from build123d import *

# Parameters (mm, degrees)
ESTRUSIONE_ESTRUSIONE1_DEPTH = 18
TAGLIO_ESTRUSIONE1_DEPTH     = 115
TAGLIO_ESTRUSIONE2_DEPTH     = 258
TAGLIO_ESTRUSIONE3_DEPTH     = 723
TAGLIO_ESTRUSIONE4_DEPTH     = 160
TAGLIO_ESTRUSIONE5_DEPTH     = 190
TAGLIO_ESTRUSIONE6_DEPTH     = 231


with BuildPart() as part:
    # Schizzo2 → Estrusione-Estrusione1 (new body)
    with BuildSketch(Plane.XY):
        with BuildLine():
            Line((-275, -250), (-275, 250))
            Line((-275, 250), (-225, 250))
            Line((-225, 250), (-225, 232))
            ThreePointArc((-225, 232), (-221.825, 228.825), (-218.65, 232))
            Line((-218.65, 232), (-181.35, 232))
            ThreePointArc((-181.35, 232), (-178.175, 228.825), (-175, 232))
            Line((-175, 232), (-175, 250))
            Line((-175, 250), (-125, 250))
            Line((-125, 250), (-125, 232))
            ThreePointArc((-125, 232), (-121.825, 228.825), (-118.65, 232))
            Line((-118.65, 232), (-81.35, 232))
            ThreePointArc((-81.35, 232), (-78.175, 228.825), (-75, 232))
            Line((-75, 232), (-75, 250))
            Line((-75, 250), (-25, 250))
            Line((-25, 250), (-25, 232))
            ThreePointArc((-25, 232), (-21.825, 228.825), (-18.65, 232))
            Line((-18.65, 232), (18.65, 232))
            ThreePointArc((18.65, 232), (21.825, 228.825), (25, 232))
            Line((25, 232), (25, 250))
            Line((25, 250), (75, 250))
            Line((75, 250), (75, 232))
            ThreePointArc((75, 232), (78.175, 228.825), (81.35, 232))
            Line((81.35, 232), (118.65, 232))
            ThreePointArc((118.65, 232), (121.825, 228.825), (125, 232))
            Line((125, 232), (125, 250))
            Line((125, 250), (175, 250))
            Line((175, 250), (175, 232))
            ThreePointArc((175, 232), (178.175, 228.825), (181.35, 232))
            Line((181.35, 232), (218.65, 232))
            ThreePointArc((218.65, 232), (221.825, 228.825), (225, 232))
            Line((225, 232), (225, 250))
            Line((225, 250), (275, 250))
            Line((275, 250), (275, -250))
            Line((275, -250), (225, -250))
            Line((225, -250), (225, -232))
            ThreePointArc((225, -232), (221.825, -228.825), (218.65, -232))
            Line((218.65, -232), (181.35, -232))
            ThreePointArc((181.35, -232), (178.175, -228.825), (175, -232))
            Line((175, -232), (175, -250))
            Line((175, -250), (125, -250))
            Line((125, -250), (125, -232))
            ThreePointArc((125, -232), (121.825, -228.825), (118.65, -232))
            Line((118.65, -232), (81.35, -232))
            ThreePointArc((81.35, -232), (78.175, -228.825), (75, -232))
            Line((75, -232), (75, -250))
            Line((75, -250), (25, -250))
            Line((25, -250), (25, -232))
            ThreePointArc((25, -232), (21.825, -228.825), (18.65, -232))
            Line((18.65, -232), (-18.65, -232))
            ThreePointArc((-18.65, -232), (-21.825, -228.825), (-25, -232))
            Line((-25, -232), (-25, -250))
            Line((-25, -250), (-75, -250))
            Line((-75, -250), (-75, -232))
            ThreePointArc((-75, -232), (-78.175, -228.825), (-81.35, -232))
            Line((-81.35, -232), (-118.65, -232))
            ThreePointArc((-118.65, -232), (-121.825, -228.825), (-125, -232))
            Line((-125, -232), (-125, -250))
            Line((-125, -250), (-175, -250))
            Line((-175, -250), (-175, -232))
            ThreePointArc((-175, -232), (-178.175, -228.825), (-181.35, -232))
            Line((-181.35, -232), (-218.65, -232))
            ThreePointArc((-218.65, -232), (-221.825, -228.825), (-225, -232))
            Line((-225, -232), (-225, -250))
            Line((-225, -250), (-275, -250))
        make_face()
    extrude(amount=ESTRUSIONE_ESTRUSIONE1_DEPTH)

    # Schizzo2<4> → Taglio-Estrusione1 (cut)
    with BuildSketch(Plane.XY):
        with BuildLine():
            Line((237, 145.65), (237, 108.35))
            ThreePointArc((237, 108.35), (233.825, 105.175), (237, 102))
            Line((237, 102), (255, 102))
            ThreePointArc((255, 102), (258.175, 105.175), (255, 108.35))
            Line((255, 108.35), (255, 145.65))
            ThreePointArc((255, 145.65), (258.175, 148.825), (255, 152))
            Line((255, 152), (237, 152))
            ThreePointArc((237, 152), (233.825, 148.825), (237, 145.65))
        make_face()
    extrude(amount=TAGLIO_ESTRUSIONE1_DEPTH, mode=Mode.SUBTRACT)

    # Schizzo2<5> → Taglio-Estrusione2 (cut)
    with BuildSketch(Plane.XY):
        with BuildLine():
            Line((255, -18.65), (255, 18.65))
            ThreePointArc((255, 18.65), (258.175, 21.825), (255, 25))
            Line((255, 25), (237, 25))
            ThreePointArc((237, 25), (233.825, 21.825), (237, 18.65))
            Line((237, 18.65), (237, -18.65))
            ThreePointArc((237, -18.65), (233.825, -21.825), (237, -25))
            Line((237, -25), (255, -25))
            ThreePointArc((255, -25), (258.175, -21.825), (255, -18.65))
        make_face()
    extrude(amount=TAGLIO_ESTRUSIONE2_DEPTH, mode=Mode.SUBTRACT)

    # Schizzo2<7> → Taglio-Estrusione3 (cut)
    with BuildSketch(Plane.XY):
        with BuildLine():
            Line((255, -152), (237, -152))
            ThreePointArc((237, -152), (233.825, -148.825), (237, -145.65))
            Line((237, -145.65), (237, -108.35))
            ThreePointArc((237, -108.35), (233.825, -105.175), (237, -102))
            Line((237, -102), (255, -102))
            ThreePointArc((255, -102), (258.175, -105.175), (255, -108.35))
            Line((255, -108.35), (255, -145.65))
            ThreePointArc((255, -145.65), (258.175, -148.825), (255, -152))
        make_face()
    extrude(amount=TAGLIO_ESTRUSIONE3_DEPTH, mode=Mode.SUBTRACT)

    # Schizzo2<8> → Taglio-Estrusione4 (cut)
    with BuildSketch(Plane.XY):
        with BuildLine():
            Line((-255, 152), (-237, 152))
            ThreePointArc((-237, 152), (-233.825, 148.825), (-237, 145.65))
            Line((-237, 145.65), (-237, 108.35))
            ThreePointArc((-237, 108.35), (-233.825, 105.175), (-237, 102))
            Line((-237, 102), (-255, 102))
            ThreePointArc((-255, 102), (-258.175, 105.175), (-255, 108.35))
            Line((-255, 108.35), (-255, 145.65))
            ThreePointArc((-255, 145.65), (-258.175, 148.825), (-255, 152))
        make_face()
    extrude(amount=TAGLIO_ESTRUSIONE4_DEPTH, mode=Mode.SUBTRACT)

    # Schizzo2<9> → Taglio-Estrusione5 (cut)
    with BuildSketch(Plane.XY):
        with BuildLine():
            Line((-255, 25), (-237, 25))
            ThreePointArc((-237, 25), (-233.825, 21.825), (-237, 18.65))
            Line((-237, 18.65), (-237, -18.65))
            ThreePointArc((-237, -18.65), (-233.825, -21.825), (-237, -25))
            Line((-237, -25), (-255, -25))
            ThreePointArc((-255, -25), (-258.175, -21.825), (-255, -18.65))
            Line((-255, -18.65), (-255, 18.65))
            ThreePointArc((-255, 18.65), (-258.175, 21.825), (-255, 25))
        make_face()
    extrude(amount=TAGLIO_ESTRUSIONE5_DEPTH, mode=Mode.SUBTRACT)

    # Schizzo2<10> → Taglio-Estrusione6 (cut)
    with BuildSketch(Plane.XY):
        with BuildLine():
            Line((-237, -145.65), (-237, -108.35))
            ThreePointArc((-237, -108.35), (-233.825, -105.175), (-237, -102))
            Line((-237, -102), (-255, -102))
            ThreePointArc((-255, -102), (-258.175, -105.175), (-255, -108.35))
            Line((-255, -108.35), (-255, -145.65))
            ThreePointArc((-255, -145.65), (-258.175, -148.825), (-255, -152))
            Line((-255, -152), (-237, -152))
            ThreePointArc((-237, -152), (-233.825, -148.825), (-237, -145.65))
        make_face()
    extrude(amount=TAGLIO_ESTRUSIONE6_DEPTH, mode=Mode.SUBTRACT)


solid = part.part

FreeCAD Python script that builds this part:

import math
import FreeCAD as App
import Part
import Sketcher
from FreeCAD import Vector
Q = App.Units.Quantity

doc = App.newDocument("Part")
body = doc.addObject("PartDesign::Body", "Body")

# Sketch on XY plane
sketch1 = body.newObject("Sketcher::SketchObject", "Sketch")
sketch1.AttachmentSupport = (doc.getObject("XY_Plane"), [""])
sketch1.MapMode = "FlatFace"
sketch1.addGeometry([
    Part.LineSegment(Vector(-275, 250, 0), Vector(-275, -250, 0)),  # 0
    Part.LineSegment(Vector(-275, -250, 0), Vector(-225, -250, 0)),  # 1
    Part.LineSegment(Vector(-225, -250, 0), Vector(-225, -232, 0)),  # 2
    Part.ArcOfCircle(Part.Circle(Vector(-221.8, -232, 0), Vector(0, 0, 1), 3.2), math.radians(0), math.radians(180)),  # 3
    Part.LineSegment(Vector(-218.7, -232, 0), Vector(-181.3, -232, 0)),  # 4
    Part.ArcOfCircle(Part.Circle(Vector(-178.2, -232, 0), Vector(0, 0, 1), 3.2), math.radians(0), math.radians(180)),  # 5
    Part.LineSegment(Vector(-175, -232, 0), Vector(-175, -250, 0)),  # 6
    Part.LineSegment(Vector(-175, -250, 0), Vector(-125, -250, 0)),  # 7
    Part.LineSegment(Vector(-125, -250, 0), Vector(-125, -232, 0)),  # 8
    Part.ArcOfCircle(Part.Circle(Vector(-121.8, -232, 0), Vector(0, 0, 1), 3.2), math.radians(0), math.radians(180)),  # 9
    Part.LineSegment(Vector(-118.7, -232, 0), Vector(-81.3, -232, 0)),  # 10
    Part.ArcOfCircle(Part.Circle(Vector(-78.2, -232, 0), Vector(0, 0, 1), 3.2), math.radians(0), math.radians(180)),  # 11
    Part.LineSegment(Vector(-75, -232, 0), Vector(-75, -250, 0)),  # 12
    Part.LineSegment(Vector(-75, -250, 0), Vector(-25, -250, 0)),  # 13
    Part.LineSegment(Vector(-25, -250, 0), Vector(-25, -232, 0)),  # 14
    Part.ArcOfCircle(Part.Circle(Vector(-21.8, -232, 0), Vector(0, 0, 1), 3.2), math.radians(0), math.radians(180)),  # 15
    Part.LineSegment(Vector(-18.6, -232, 0), Vector(18.6, -232, 0)),  # 16
    Part.ArcOfCircle(Part.Circle(Vector(21.8, -232, 0), Vector(0, 0, 1), 3.2), math.radians(0), math.radians(180)),  # 17
    Part.LineSegment(Vector(25, -232, 0), Vector(25, -250, 0)),  # 18
    Part.LineSegment(Vector(25, -250, 0), Vector(75, -250, 0)),  # 19
    Part.LineSegment(Vector(75, -250, 0), Vector(75, -232, 0)),  # 20
    Part.ArcOfCircle(Part.Circle(Vector(78.2, -232, 0), Vector(0, 0, 1), 3.2), math.radians(0), math.radians(180)),  # 21
    Part.LineSegment(Vector(81.3, -232, 0), Vector(118.7, -232, 0)),  # 22
    Part.ArcOfCircle(Part.Circle(Vector(121.8, -232, 0), Vector(0, 0, 1), 3.2), math.radians(0), math.radians(180)),  # 23
    Part.LineSegment(Vector(125, -232, 0), Vector(125, -250, 0)),  # 24
    Part.LineSegment(Vector(125, -250, 0), Vector(175, -250, 0)),  # 25
    Part.LineSegment(Vector(175, -250, 0), Vector(175, -232, 0)),  # 26
    Part.ArcOfCircle(Part.Circle(Vector(178.2, -232, 0), Vector(0, 0, 1), 3.2), math.radians(0), math.radians(180)),  # 27
    Part.LineSegment(Vector(181.3, -232, 0), Vector(218.7, -232, 0)),  # 28
    Part.ArcOfCircle(Part.Circle(Vector(221.8, -232, 0), Vector(0, 0, 1), 3.2), math.radians(0), math.radians(180)),  # 29
    Part.LineSegment(Vector(225, -232, 0), Vector(225, -250, 0)),  # 30
    Part.LineSegment(Vector(225, -250, 0), Vector(275, -250, 0)),  # 31
    Part.LineSegment(Vector(275, -250, 0), Vector(275, 250, 0)),  # 32
    Part.LineSegment(Vector(275, 250, 0), Vector(225, 250, 0)),  # 33
    Part.LineSegment(Vector(225, 250, 0), Vector(225, 232, 0)),  # 34
    Part.ArcOfCircle(Part.Circle(Vector(221.8, 232, 0), Vector(0, 0, 1), 3.2), math.radians(180), math.radians(360)),  # 35
    Part.LineSegment(Vector(218.7, 232, 0), Vector(181.3, 232, 0)),  # 36
    Part.ArcOfCircle(Part.Circle(Vector(178.2, 232, 0), Vector(0, 0, 1), 3.2), math.radians(180), math.radians(360)),  # 37
    Part.LineSegment(Vector(175, 232, 0), Vector(175, 250, 0)),  # 38
    Part.LineSegment(Vector(175, 250, 0), Vector(125, 250, 0)),  # 39
    Part.LineSegment(Vector(125, 250, 0), Vector(125, 232, 0)),  # 40
    Part.ArcOfCircle(Part.Circle(Vector(121.8, 232, 0), Vector(0, 0, 1), 3.2), math.radians(180), math.radians(360)),  # 41
    Part.LineSegment(Vector(118.7, 232, 0), Vector(81.3, 232, 0)),  # 42
    Part.ArcOfCircle(Part.Circle(Vector(78.2, 232, 0), Vector(0, 0, 1), 3.2), math.radians(180), math.radians(360)),  # 43
    Part.LineSegment(Vector(75, 232, 0), Vector(75, 250, 0)),  # 44
    Part.LineSegment(Vector(75, 250, 0), Vector(25, 250, 0)),  # 45
    Part.LineSegment(Vector(25, 250, 0), Vector(25, 232, 0)),  # 46
    Part.ArcOfCircle(Part.Circle(Vector(21.8, 232, 0), Vector(0, 0, 1), 3.2), math.radians(180), math.radians(360)),  # 47
    Part.LineSegment(Vector(18.6, 232, 0), Vector(-18.6, 232, 0)),  # 48
    Part.ArcOfCircle(Part.Circle(Vector(-21.8, 232, 0), Vector(0, 0, 1), 3.2), math.radians(180), math.radians(360)),  # 49
    Part.LineSegment(Vector(-25, 232, 0), Vector(-25, 250, 0)),  # 50
    Part.LineSegment(Vector(-25, 250, 0), Vector(-75, 250, 0)),  # 51
    Part.LineSegment(Vector(-75, 250, 0), Vector(-75, 232, 0)),  # 52
    Part.ArcOfCircle(Part.Circle(Vector(-78.2, 232, 0), Vector(0, 0, 1), 3.2), math.radians(180), math.radians(360)),  # 53
    Part.LineSegment(Vector(-81.3, 232, 0), Vector(-118.7, 232, 0)),  # 54
    Part.ArcOfCircle(Part.Circle(Vector(-121.8, 232, 0), Vector(0, 0, 1), 3.2), math.radians(180), math.radians(360)),  # 55
    Part.LineSegment(Vector(-125, 232, 0), Vector(-125, 250, 0)),  # 56
    Part.LineSegment(Vector(-125, 250, 0), Vector(-175, 250, 0)),  # 57
    Part.LineSegment(Vector(-175, 250, 0), Vector(-175, 232, 0)),  # 58
    Part.ArcOfCircle(Part.Circle(Vector(-178.2, 232, 0), Vector(0, 0, 1), 3.2), math.radians(180), math.radians(360)),  # 59
    Part.LineSegment(Vector(-181.3, 232, 0), Vector(-218.7, 232, 0)),  # 60
    Part.ArcOfCircle(Part.Circle(Vector(-221.8, 232, 0), Vector(0, 0, 1), 3.2), math.radians(180), math.radians(360)),  # 61
    Part.LineSegment(Vector(-225, 232, 0), Vector(-225, 250, 0)),  # 62
    Part.LineSegment(Vector(-225, 250, 0), Vector(-275, 250, 0)),  # 63
], False)
sketch1.addConstraint([
    Sketcher.Constraint("Coincident", 0, 2, 1, 1),
    Sketcher.Constraint("Coincident", 1, 2, 2, 1),
    Sketcher.Constraint("Tangent", 2, 2, 3, 2),
    Sketcher.Constraint("Coincident", 3, 1, 4, 1),
    Sketcher.Constraint("Coincident", 4, 2, 5, 2),
    Sketcher.Constraint("Tangent", 5, 1, 6, 1),
    Sketcher.Constraint("Coincident", 6, 2, 7, 1),
    Sketcher.Constraint("Coincident", 7, 2, 8, 1),
    Sketcher.Constraint("Tangent", 8, 2, 9, 2),
    Sketcher.Constraint("Coincident", 9, 1, 10, 1),
    Sketcher.Constraint("Coincident", 10, 2, 11, 2),
    Sketcher.Constraint("Tangent", 11, 1, 12, 1),
    Sketcher.Constraint("Coincident", 12, 2, 13, 1),
    Sketcher.Constraint("Coincident", 13, 2, 14, 1),
    Sketcher.Constraint("Tangent", 14, 2, 15, 2),
    Sketcher.Constraint("Coincident", 15, 1, 16, 1),
    Sketcher.Constraint("Coincident", 16, 2, 17, 2),
    Sketcher.Constraint("Tangent", 17, 1, 18, 1),
    Sketcher.Constraint("Coincident", 18, 2, 19, 1),
    Sketcher.Constraint("Coincident", 19, 2, 20, 1),
    Sketcher.Constraint("Tangent", 20, 2, 21, 2),
    Sketcher.Constraint("Coincident", 21, 1, 22, 1),
    Sketcher.Constraint("Coincident", 22, 2, 23, 2),
    Sketcher.Constraint("Tangent", 23, 1, 24, 1),
    Sketcher.Constraint("Coincident", 24, 2, 25, 1),
    Sketcher.Constraint("Coincident", 25, 2, 26, 1),
    Sketcher.Constraint("Tangent", 26, 2, 27, 2),
    Sketcher.Constraint("Coincident", 27, 1, 28, 1),
    Sketcher.Constraint("Coincident", 28, 2, 29, 2),
    Sketcher.Constraint("Tangent", 29, 1, 30, 1),
    Sketcher.Constraint("Coincident", 30, 2, 31, 1),
    Sketcher.Constraint("Coincident", 31, 2, 32, 1),
    Sketcher.Constraint("Coincident", 32, 2, 33, 1),
    Sketcher.Constraint("Coincident", 33, 2, 34, 1),
    Sketcher.Constraint("Tangent", 34, 2, 35, 2),
    Sketcher.Constraint("Coincident", 35, 1, 36, 1),
    Sketcher.Constraint("Coincident", 36, 2, 37, 2),
    Sketcher.Constraint("Tangent", 37, 1, 38, 1),
    Sketcher.Constraint("Coincident", 38, 2, 39, 1),
    Sketcher.Constraint("Coincident", 39, 2, 40, 1),
    Sketcher.Constraint("Tangent", 40, 2, 41, 2),
    Sketcher.Constraint("Coincident", 41, 1, 42, 1),
    Sketcher.Constraint("Coincident", 42, 2, 43, 2),
    Sketcher.Constraint("Tangent", 43, 1, 44, 1),
    Sketcher.Constraint("Coincident", 44, 2, 45, 1),
    Sketcher.Constraint("Coincident", 45, 2, 46, 1),
    Sketcher.Constraint("Tangent", 46, 2, 47, 2),
    Sketcher.Constraint("Coincident", 47, 1, 48, 1),
    Sketcher.Constraint("Coincident", 48, 2, 49, 2),
    Sketcher.Constraint("Tangent", 49, 1, 50, 1),
    Sketcher.Constraint("Coincident", 50, 2, 51, 1),
    Sketcher.Constraint("Coincident", 51, 2, 52, 1),
    Sketcher.Constraint("Tangent", 52, 2, 53, 2),
    Sketcher.Constraint("Coincident", 53, 1, 54, 1),
    Sketcher.Constraint("Coincident", 54, 2, 55, 2),
    Sketcher.Constraint("Tangent", 55, 1, 56, 1),
    Sketcher.Constraint("Coincident", 56, 2, 57, 1),
    Sketcher.Constraint("Coincident", 57, 2, 58, 1),
    Sketcher.Constraint("Tangent", 58, 2, 59, 2),
    Sketcher.Constraint("Coincident", 59, 1, 60, 1),
    Sketcher.Constraint("Coincident", 60, 2, 61, 2),
    Sketcher.Constraint("Tangent", 61, 1, 62, 1),
    Sketcher.Constraint("Coincident", 62, 2, 63, 1),
    Sketcher.Constraint("Coincident", 63, 2, 0, 1),
    Sketcher.Constraint("Vertical", 0),
    Sketcher.Constraint("Horizontal", 1),
    Sketcher.Constraint("Vertical", 2),
    Sketcher.Constraint("Horizontal", 4),
    Sketcher.Constraint("Vertical", 6),
    Sketcher.Constraint("Horizontal", 7),
    Sketcher.Constraint("Vertical", 8),
    Sketcher.Constraint("Horizontal", 10),
    Sketcher.Constraint("Vertical", 12),
    Sketcher.Constraint("Horizontal", 13),
    Sketcher.Constraint("Vertical", 14),
    Sketcher.Constraint("Horizontal", 16),
    Sketcher.Constraint("Vertical", 18),
    Sketcher.Constraint("Horizontal", 19),
    Sketcher.Constraint("Vertical", 20),
    Sketcher.Constraint("Horizontal", 22),
    Sketcher.Constraint("Vertical", 24),
    Sketcher.Constraint("Horizontal", 25),
    Sketcher.Constraint("Vertical", 26),
    Sketcher.Constraint("Horizontal", 28),
    Sketcher.Constraint("Vertical", 30),
    Sketcher.Constraint("Horizontal", 31),
    Sketcher.Constraint("Vertical", 32),
    Sketcher.Constraint("Horizontal", 33),
    Sketcher.Constraint("Vertical", 34),
    Sketcher.Constraint("Horizontal", 36),
    Sketcher.Constraint("Vertical", 38),
    Sketcher.Constraint("Horizontal", 39),
    Sketcher.Constraint("Vertical", 40),
    Sketcher.Constraint("Horizontal", 42),
    Sketcher.Constraint("Vertical", 44),
    Sketcher.Constraint("Horizontal", 45),
    Sketcher.Constraint("Vertical", 46),
    Sketcher.Constraint("Horizontal", 48),
    Sketcher.Constraint("Vertical", 50),
    Sketcher.Constraint("Horizontal", 51),
    Sketcher.Constraint("Vertical", 52),
    Sketcher.Constraint("Horizontal", 54),
    Sketcher.Constraint("Vertical", 56),
    Sketcher.Constraint("Horizontal", 57),
    Sketcher.Constraint("Vertical", 58),
    Sketcher.Constraint("Horizontal", 60),
    Sketcher.Constraint("Vertical", 62),
    Sketcher.Constraint("Horizontal", 63),
    Sketcher.Constraint("Equal", 3, 5),
    Sketcher.Constraint("Equal", 5, 9),
    Sketcher.Constraint("Equal", 9, 11),
    Sketcher.Constraint("Equal", 11, 15),
    Sketcher.Constraint("Equal", 15, 17),
    Sketcher.Constraint("Equal", 17, 21),
    Sketcher.Constraint("Equal", 21, 23),
    Sketcher.Constraint("Equal", 23, 27),
    Sketcher.Constraint("Equal", 27, 29),
    Sketcher.Constraint("Equal", 29, 35),
    Sketcher.Constraint("Equal", 35, 37),
    Sketcher.Constraint("Equal", 37, 41),
    Sketcher.Constraint("Equal", 41, 43),
    Sketcher.Constraint("Equal", 43, 47),
    Sketcher.Constraint("Equal", 47, 49),
    Sketcher.Constraint("Equal", 49, 53),
    Sketcher.Constraint("Equal", 53, 55),
    Sketcher.Constraint("Equal", 55, 59),
    Sketcher.Constraint("Equal", 59, 61),
    Sketcher.Constraint("Symmetric", 3, 3, 35, 3, -1, 1),
    Sketcher.Constraint("Symmetric", 5, 3, 37, 3, -1, 1),
    Sketcher.Constraint("Symmetric", 9, 3, 41, 3, -1, 1),
    Sketcher.Constraint("Symmetric", 11, 3, 43, 3, -1, 1),
    Sketcher.Constraint("Symmetric", 15, 3, 47, 3, -1, 1),
    Sketcher.Constraint("Symmetric", 17, 3, 49, 3, -1, 1),
    Sketcher.Constraint("Symmetric", 21, 3, 53, 3, -1, 1),
    Sketcher.Constraint("Symmetric", 23, 3, 55, 3, -1, 1),
    Sketcher.Constraint("Symmetric", 27, 3, 59, 3, -1, 1),
    Sketcher.Constraint("Symmetric", 29, 3, 61, 3, -1, 1),
    Sketcher.Constraint("Symmetric", 0, 2, 32, 2, -1, 1),
    Sketcher.Constraint("Symmetric", 15, 3, 17, 3, -2),
    Sketcher.Constraint("Symmetric", 11, 3, 21, 3, -2),
    Sketcher.Constraint("Symmetric", 9, 3, 23, 3, -2),
    Sketcher.Constraint("Symmetric", 5, 3, 27, 3, -2),
    Sketcher.Constraint("Symmetric", 3, 3, 29, 3, -2),
    Sketcher.Constraint("Horizontal", 3, 3, 5, 3),
    Sketcher.Constraint("Horizontal", 5, 3, 9, 3),
    Sketcher.Constraint("Horizontal", 9, 3, 11, 3),
    Sketcher.Constraint("Horizontal", 11, 3, 15, 3),
    Sketcher.Constraint("Horizontal", 2, 2, 3, 1),
    Sketcher.Constraint("Horizontal", 1, 2, 6, 2),
    Sketcher.Constraint("Horizontal", 8, 2, 9, 1),
    Sketcher.Constraint("Horizontal", 7, 2, 12, 2),
    Sketcher.Constraint("Horizontal", 14, 2, 15, 1),
    Sketcher.Constraint("Horizontal", 13, 2, 18, 2),
    Sketcher.Constraint("Horizontal", 20, 2, 21, 1),
    Sketcher.Constraint("Horizontal", 19, 2, 24, 2),
    Sketcher.Constraint("Horizontal", 26, 2, 27, 1),
    Sketcher.Constraint("Horizontal", 25, 2, 30, 2),
    Sketcher.Constraint("Horizontal", 34, 2, 35, 1),
    Sketcher.Constraint("Horizontal", 33, 2, 38, 2),
    Sketcher.Constraint("Horizontal", 40, 2, 41, 1),
    Sketcher.Constraint("Horizontal", 39, 2, 44, 2),
    Sketcher.Constraint("Horizontal", 46, 2, 47, 1),
    Sketcher.Constraint("Horizontal", 45, 2, 50, 2),
    Sketcher.Constraint("Horizontal", 52, 2, 53, 1),
    Sketcher.Constraint("Horizontal", 51, 2, 56, 2),
    Sketcher.Constraint("Horizontal", 58, 2, 59, 1),
    Sketcher.Constraint("Horizontal", 57, 2, 62, 2),
    Sketcher.Constraint("Equal", 1, 7),
    Sketcher.Constraint("Equal", 4, 10),
    Sketcher.Constraint("Equal", 7, 13),
    Sketcher.Constraint("Equal", 10, 16),
    Sketcher.Constraint("DistanceX", 1, 1, 1, 2, Q("50 mm")),
    Sketcher.Constraint("DistanceY", 0, 2, 0, 1, Q("500 mm")),
    Sketcher.Constraint("DistanceY", 2, 1, 2, 2, Q("18 mm")),
    Sketcher.Constraint("DistanceX", 4, 1, 4, 2, Q("37.3 mm")),
    Sketcher.Constraint("DistanceX", 0, 2, -1, 1, Q("275 mm")),
])
pad1 = body.newObject("PartDesign::Pad", "Pad")
pad1.Profile = sketch1
pad1.Length = 18

# Sketch on XY plane
sketch2 = body.newObject("Sketcher::SketchObject", "Sketch001")
sketch2.AttachmentSupport = (doc.getObject("XY_Plane"), [""])
sketch2.MapMode = "FlatFace"
sketch2.addGeometry([
    Part.LineSegment(Vector(237, 145.7, 0), Vector(237, 108.3, 0)),  # 0
    Part.ArcOfCircle(Part.Circle(Vector(237, 105.2, 0), Vector(0, 0, 1), 3.2), math.radians(90), math.radians(270)),  # 1
    Part.LineSegment(Vector(237, 102, 0), Vector(255, 102, 0)),  # 2
    Part.ArcOfCircle(Part.Circle(Vector(255, 105.2, 0), Vector(0, 0, 1), 3.2), math.radians(-90), math.radians(90)),  # 3
    Part.LineSegment(Vector(255, 108.3, 0), Vector(255, 145.7, 0)),  # 4
    Part.ArcOfCircle(Part.Circle(Vector(255, 148.8, 0), Vector(0, 0, 1), 3.2), math.radians(-90), math.radians(90)),  # 5
    Part.LineSegment(Vector(255, 152, 0), Vector(237, 152, 0)),  # 6
    Part.ArcOfCircle(Part.Circle(Vector(237, 148.8, 0), Vector(0, 0, 1), 3.2), math.radians(90), math.radians(270)),  # 7
], False)
sketch2.addConstraint([
    Sketcher.Constraint("Coincident", 0, 2, 1, 1),
    Sketcher.Constraint("Tangent", 1, 2, 2, 1),
    Sketcher.Constraint("Tangent", 2, 2, 3, 1),
    Sketcher.Constraint("Coincident", 3, 2, 4, 1),
    Sketcher.Constraint("Coincident", 4, 2, 5, 1),
    Sketcher.Constraint("Tangent", 5, 2, 6, 1),
    Sketcher.Constraint("Tangent", 6, 2, 7, 1),
    Sketcher.Constraint("Coincident", 7, 2, 0, 1),
    Sketcher.Constraint("Vertical", 0),
    Sketcher.Constraint("Horizontal", 2),
    Sketcher.Constraint("Vertical", 4),
    Sketcher.Constraint("Horizontal", 6),
    Sketcher.Constraint("Equal", 1, 3),
    Sketcher.Constraint("Equal", 3, 5),
    Sketcher.Constraint("Equal", 5, 7),
    Sketcher.Constraint("Vertical", 3, 3, 5, 3),
    Sketcher.Constraint("Vertical", 1, 3, 7, 3),
    Sketcher.Constraint("Vertical", 7, 3, 0, 2),
    Sketcher.Constraint("Vertical", 2, 2, 3, 2),
    Sketcher.Constraint("DistanceX", 2, 1, 2, 2, Q("18 mm")),
    Sketcher.Constraint("DistanceY", 0, 2, 0, 1, Q("37.3 mm")),
    Sketcher.Constraint("DistanceX", -1, 1, 1, 3, Q("237 mm")),
    Sketcher.Constraint("DistanceY", -1, 1, 1, 2, Q("102 mm")),
    Sketcher.Constraint("DistanceY", -1, 1, 5, 2, Q("152 mm")),
])
pocket1 = body.newObject("PartDesign::Pocket", "Pocket")
pocket1.Profile = sketch2
pocket1.Length = 115
pocket1.Reversed = True

# Sketch on XY plane
sketch3 = body.newObject("Sketcher::SketchObject", "Sketch002")
sketch3.AttachmentSupport = (doc.getObject("XY_Plane"), [""])
sketch3.MapMode = "FlatFace"
sketch3.addGeometry([
    Part.LineSegment(Vector(255, -18.6, 0), Vector(255, 18.6, 0)),  # 0
    Part.ArcOfCircle(Part.Circle(Vector(255, 21.8, 0), Vector(0, 0, 1), 3.2), math.radians(-90), math.radians(90)),  # 1
    Part.LineSegment(Vector(255, 25, 0), Vector(237, 25, 0)),  # 2
    Part.ArcOfCircle(Part.Circle(Vector(237, 21.8, 0), Vector(0, 0, 1), 3.2), math.radians(90), math.radians(270)),  # 3
    Part.LineSegment(Vector(237, 18.6, 0), Vector(237, -18.6, 0)),  # 4
    Part.ArcOfCircle(Part.Circle(Vector(237, -21.8, 0), Vector(0, 0, 1), 3.2), math.radians(90), math.radians(270)),  # 5
    Part.LineSegment(Vector(237, -25, 0), Vector(255, -25, 0)),  # 6
    Part.ArcOfCircle(Part.Circle(Vector(255, -21.8, 0), Vector(0, 0, 1), 3.2), math.radians(-90), math.radians(90)),  # 7
], False)
sketch3.addConstraint([
    Sketcher.Constraint("Coincident", 0, 2, 1, 1),
    Sketcher.Constraint("Tangent", 1, 2, 2, 1),
    Sketcher.Constraint("Tangent", 2, 2, 3, 1),
    Sketcher.Constraint("Coincident", 3, 2, 4, 1),
    Sketcher.Constraint("Coincident", 4, 2, 5, 1),
    Sketcher.Constraint("Tangent", 5, 2, 6, 1),
    Sketcher.Constraint("Tangent", 6, 2, 7, 1),
    Sketcher.Constraint("Coincident", 7, 2, 0, 1),
    Sketcher.Constraint("Vertical", 0),
    Sketcher.Constraint("Horizontal", 2),
    Sketcher.Constraint("Vertical", 4),
    Sketcher.Constraint("Horizontal", 6),
    Sketcher.Constraint("Equal", 1, 3),
    Sketcher.Constraint("Equal", 3, 5),
    Sketcher.Constraint("Equal", 5, 7),
    Sketcher.Constraint("Symmetric", 3, 3, 5, 3, -1),
    Sketcher.Constraint("Vertical", 1, 3, 7, 3),
    Sketcher.Constraint("Vertical", 7, 3, 0, 2),
    Sketcher.Constraint("Vertical", 2, 2, 3, 2),
    Sketcher.Constraint("DistanceX", 2, 2, 2, 1, Q("18 mm")),
    Sketcher.Constraint("DistanceY", 0, 1, 0, 2, Q("37.3 mm")),
    Sketcher.Constraint("DistanceX", -1, 1, 1, 3, Q("255 mm")),
    Sketcher.Constraint("DistanceY", -1, 1, 1, 2, Q("25 mm")),
])
pocket2 = body.newObject("PartDesign::Pocket", "Pocket001")
pocket2.Profile = sketch3
pocket2.Length = 258
pocket2.Reversed = True

# Sketch on XY plane
sketch4 = body.newObject("Sketcher::SketchObject", "Sketch003")
sketch4.AttachmentSupport = (doc.getObject("XY_Plane"), [""])
sketch4.MapMode = "FlatFace"
sketch4.addGeometry([
    Part.LineSegment(Vector(237, -152, 0), Vector(255, -152, 0)),  # 0
    Part.ArcOfCircle(Part.Circle(Vector(255, -148.8, 0), Vector(0, 0, 1), 3.2), math.radians(-90), math.radians(90)),  # 1
    Part.LineSegment(Vector(255, -145.7, 0), Vector(255, -108.3, 0)),  # 2
    Part.ArcOfCircle(Part.Circle(Vector(255, -105.2, 0), Vector(0, 0, 1), 3.2), math.radians(-90), math.radians(90)),  # 3
    Part.LineSegment(Vector(255, -102, 0), Vector(237, -102, 0)),  # 4
    Part.ArcOfCircle(Part.Circle(Vector(237, -105.2, 0), Vector(0, 0, 1), 3.2), math.radians(90), math.radians(270)),  # 5
    Part.LineSegment(Vector(237, -108.3, 0), Vector(237, -145.7, 0)),  # 6
    Part.ArcOfCircle(Part.Circle(Vector(237, -148.8, 0), Vector(0, 0, 1), 3.2), math.radians(90), math.radians(270)),  # 7
], False)
sketch4.addConstraint([
    Sketcher.Constraint("Tangent", 0, 2, 1, 1),
    Sketcher.Constraint("Coincident", 1, 2, 2, 1),
    Sketcher.Constraint("Coincident", 2, 2, 3, 1),
    Sketcher.Constraint("Tangent", 3, 2, 4, 1),
    Sketcher.Constraint("Tangent", 4, 2, 5, 1),
    Sketcher.Constraint("Coincident", 5, 2, 6, 1),
    Sketcher.Constraint("Coincident", 6, 2, 7, 1),
    Sketcher.Constraint("Tangent", 7, 2, 0, 1),
    Sketcher.Constraint("Horizontal", 0),
    Sketcher.Constraint("Vertical", 2),
    Sketcher.Constraint("Horizontal", 4),
    Sketcher.Constraint("Vertical", 6),
    Sketcher.Constraint("Equal", 1, 3),
    Sketcher.Constraint("Equal", 3, 5),
    Sketcher.Constraint("Equal", 5, 7),
    Sketcher.Constraint("Vertical", 1, 3, 3, 3),
    Sketcher.Constraint("Vertical", 5, 3, 7, 3),
    Sketcher.Constraint("Vertical", 0, 2, 1, 2),
    Sketcher.Constraint("Vertical", 4, 2, 5, 2),
    Sketcher.Constraint("DistanceX", 0, 1, 0, 2, Q("18 mm")),
    Sketcher.Constraint("DistanceY", 2, 1, 2, 2, Q("37.3 mm")),
    Sketcher.Constraint("DistanceX", -1, 1, 1, 3, Q("255 mm")),
    Sketcher.Constraint("DistanceY", 0, 2, -1, 1, Q("152 mm")),
    Sketcher.Constraint("DistanceY", 3, 2, -1, 1, Q("102 mm")),
])
pocket3 = body.newObject("PartDesign::Pocket", "Pocket002")
pocket3.Profile = sketch4
pocket3.Length = 723
pocket3.Reversed = True

# Sketch on XY plane
sketch5 = body.newObject("Sketcher::SketchObject", "Sketch004")
sketch5.AttachmentSupport = (doc.getObject("XY_Plane"), [""])
sketch5.MapMode = "FlatFace"
sketch5.addGeometry([
    Part.LineSegment(Vector(-237, 152, 0), Vector(-255, 152, 0)),  # 0
    Part.ArcOfCircle(Part.Circle(Vector(-255, 148.8, 0), Vector(0, 0, 1), 3.2), math.radians(90), math.radians(270)),  # 1
    Part.LineSegment(Vector(-255, 145.7, 0), Vector(-255, 108.3, 0)),  # 2
    Part.ArcOfCircle(Part.Circle(Vector(-255, 105.2, 0), Vector(0, 0, 1), 3.2), math.radians(90), math.radians(270)),  # 3
    Part.LineSegment(Vector(-255, 102, 0), Vector(-237, 102, 0)),  # 4
    Part.ArcOfCircle(Part.Circle(Vector(-237, 105.2, 0), Vector(0, 0, 1), 3.2), math.radians(-90), math.radians(90)),  # 5
    Part.LineSegment(Vector(-237, 108.3, 0), Vector(-237, 145.7, 0)),  # 6
    Part.ArcOfCircle(Part.Circle(Vector(-237, 148.8, 0), Vector(0, 0, 1), 3.2), math.radians(-90), math.radians(90)),  # 7
], False)
sketch5.addConstraint([
    Sketcher.Constraint("Tangent", 0, 2, 1, 1),
    Sketcher.Constraint("Coincident", 1, 2, 2, 1),
    Sketcher.Constraint("Coincident", 2, 2, 3, 1),
    Sketcher.Constraint("Tangent", 3, 2, 4, 1),
    Sketcher.Constraint("Tangent", 4, 2, 5, 1),
    Sketcher.Constraint("Coincident", 5, 2, 6, 1),
    Sketcher.Constraint("Coincident", 6, 2, 7, 1),
    Sketcher.Constraint("Tangent", 7, 2, 0, 1),
    Sketcher.Constraint("Horizontal", 0),
    Sketcher.Constraint("Vertical", 2),
    Sketcher.Constraint("Horizontal", 4),
    Sketcher.Constraint("Vertical", 6),
    Sketcher.Constraint("Equal", 1, 3),
    Sketcher.Constraint("Equal", 3, 5),
    Sketcher.Constraint("Equal", 5, 7),
    Sketcher.Constraint("Vertical", 1, 3, 3, 3),
    Sketcher.Constraint("Vertical", 5, 3, 7, 3),
    Sketcher.Constraint("Vertical", 0, 2, 1, 2),
    Sketcher.Constraint("Vertical", 4, 2, 5, 2),
    Sketcher.Constraint("DistanceX", 0, 2, 0, 1, Q("18 mm")),
    Sketcher.Constraint("DistanceY", 2, 2, 2, 1, Q("37.3 mm")),
    Sketcher.Constraint("DistanceX", 1, 3, -1, 1, Q("255 mm")),
    Sketcher.Constraint("DistanceY", -1, 1, 0, 2, Q("152 mm")),
    Sketcher.Constraint("DistanceY", -1, 1, 3, 2, Q("102 mm")),
])
pocket4 = body.newObject("PartDesign::Pocket", "Pocket003")
pocket4.Profile = sketch5
pocket4.Length = 160
pocket4.Reversed = True

# Sketch on XY plane
sketch6 = body.newObject("Sketcher::SketchObject", "Sketch005")
sketch6.AttachmentSupport = (doc.getObject("XY_Plane"), [""])
sketch6.MapMode = "FlatFace"
sketch6.addGeometry([
    Part.LineSegment(Vector(-237, 25, 0), Vector(-255, 25, 0)),  # 0
    Part.ArcOfCircle(Part.Circle(Vector(-255, 21.8, 0), Vector(0, 0, 1), 3.2), math.radians(90), math.radians(270)),  # 1
    Part.LineSegment(Vector(-255, 18.6, 0), Vector(-255, -18.6, 0)),  # 2
    Part.ArcOfCircle(Part.Circle(Vector(-255, -21.8, 0), Vector(0, 0, 1), 3.2), math.radians(90), math.radians(270)),  # 3
    Part.LineSegment(Vector(-255, -25, 0), Vector(-237, -25, 0)),  # 4
    Part.ArcOfCircle(Part.Circle(Vector(-237, -21.8, 0), Vector(0, 0, 1), 3.2), math.radians(-90), math.radians(90)),  # 5
    Part.LineSegment(Vector(-237, -18.6, 0), Vector(-237, 18.6, 0)),  # 6
    Part.ArcOfCircle(Part.Circle(Vector(-237, 21.8, 0), Vector(0, 0, 1), 3.2), math.radians(-90), math.radians(90)),  # 7
], False)
sketch6.addConstraint([
    Sketcher.Constraint("Tangent", 0, 2, 1, 1),
    Sketcher.Constraint("Coincident", 1, 2, 2, 1),
    Sketcher.Constraint("Coincident", 2, 2, 3, 1),
    Sketcher.Constraint("Tangent", 3, 2, 4, 1),
    Sketcher.Constraint("Tangent", 4, 2, 5, 1),
    Sketcher.Constraint("Coincident", 5, 2, 6, 1),
    Sketcher.Constraint("Coincident", 6, 2, 7, 1),
    Sketcher.Constraint("Tangent", 7, 2, 0, 1),
    Sketcher.Constraint("Horizontal", 0),
    Sketcher.Constraint("Vertical", 2),
    Sketcher.Constraint("Horizontal", 4),
    Sketcher.Constraint("Vertical", 6),
    Sketcher.Constraint("Equal", 1, 3),
    Sketcher.Constraint("Equal", 3, 5),
    Sketcher.Constraint("Equal", 5, 7),
    Sketcher.Constraint("Symmetric", 1, 3, 3, 3, -1),
    Sketcher.Constraint("Vertical", 5, 3, 7, 3),
    Sketcher.Constraint("Vertical", 0, 2, 1, 2),
    Sketcher.Constraint("Vertical", 4, 2, 5, 2),
    Sketcher.Constraint("DistanceX", 0, 2, 0, 1, Q("18 mm")),
    Sketcher.Constraint("DistanceY", 2, 2, 2, 1, Q("37.3 mm")),
    Sketcher.Constraint("DistanceX", 1, 3, -1, 1, Q("255 mm")),
    Sketcher.Constraint("DistanceY", -1, 1, 0, 2, Q("25 mm")),
])
pocket5 = body.newObject("PartDesign::Pocket", "Pocket004")
pocket5.Profile = sketch6
pocket5.Length = 190
pocket5.Reversed = True

# Sketch on XY plane
sketch7 = body.newObject("Sketcher::SketchObject", "Sketch006")
sketch7.AttachmentSupport = (doc.getObject("XY_Plane"), [""])
sketch7.MapMode = "FlatFace"
sketch7.addGeometry([
    Part.LineSegment(Vector(-237, -145.7, 0), Vector(-237, -108.3, 0)),  # 0
    Part.ArcOfCircle(Part.Circle(Vector(-237, -105.2, 0), Vector(0, 0, 1), 3.2), math.radians(-90), math.radians(90)),  # 1
    Part.LineSegment(Vector(-237, -102, 0), Vector(-255, -102, 0)),  # 2
    Part.ArcOfCircle(Part.Circle(Vector(-255, -105.2, 0), Vector(0, 0, 1), 3.2), math.radians(90), math.radians(270)),  # 3
    Part.LineSegment(Vector(-255, -108.3, 0), Vector(-255, -145.7, 0)),  # 4
    Part.ArcOfCircle(Part.Circle(Vector(-255, -148.8, 0), Vector(0, 0, 1), 3.2), math.radians(90), math.radians(270)),  # 5
    Part.LineSegment(Vector(-255, -152, 0), Vector(-237, -152, 0)),  # 6
    Part.ArcOfCircle(Part.Circle(Vector(-237, -148.8, 0), Vector(0, 0, 1), 3.2), math.radians(-90), math.radians(90)),  # 7
], False)
sketch7.addConstraint([
    Sketcher.Constraint("Coincident", 0, 2, 1, 1),
    Sketcher.Constraint("Tangent", 1, 2, 2, 1),
    Sketcher.Constraint("Tangent", 2, 2, 3, 1),
    Sketcher.Constraint("Coincident", 3, 2, 4, 1),
    Sketcher.Constraint("Coincident", 4, 2, 5, 1),
    Sketcher.Constraint("Tangent", 5, 2, 6, 1),
    Sketcher.Constraint("Tangent", 6, 2, 7, 1),
    Sketcher.Constraint("Coincident", 7, 2, 0, 1),
    Sketcher.Constraint("Vertical", 0),
    Sketcher.Constraint("Horizontal", 2),
    Sketcher.Constraint("Vertical", 4),
    Sketcher.Constraint("Horizontal", 6),
    Sketcher.Constraint("Equal", 1, 3),
    Sketcher.Constraint("Equal", 3, 5),
    Sketcher.Constraint("Equal", 5, 7),
    Sketcher.Constraint("Vertical", 3, 3, 5, 3),
    Sketcher.Constraint("Vertical", 1, 3, 7, 3),
    Sketcher.Constraint("Vertical", 7, 3, 0, 2),
    Sketcher.Constraint("Vertical", 2, 2, 3, 2),
    Sketcher.Constraint("DistanceX", 2, 2, 2, 1, Q("18 mm")),
    Sketcher.Constraint("DistanceY", 0, 1, 0, 2, Q("37.3 mm")),
    Sketcher.Constraint("DistanceX", 1, 3, -1, 1, Q("237 mm")),
    Sketcher.Constraint("DistanceY", 1, 2, -1, 1, Q("102 mm")),
    Sketcher.Constraint("DistanceY", 5, 2, -1, 1, Q("152 mm")),
])
pocket6 = body.newObject("PartDesign::Pocket", "Pocket005")
pocket6.Profile = sketch7
pocket6.Length = 231
pocket6.Reversed = True

doc.recompute()
